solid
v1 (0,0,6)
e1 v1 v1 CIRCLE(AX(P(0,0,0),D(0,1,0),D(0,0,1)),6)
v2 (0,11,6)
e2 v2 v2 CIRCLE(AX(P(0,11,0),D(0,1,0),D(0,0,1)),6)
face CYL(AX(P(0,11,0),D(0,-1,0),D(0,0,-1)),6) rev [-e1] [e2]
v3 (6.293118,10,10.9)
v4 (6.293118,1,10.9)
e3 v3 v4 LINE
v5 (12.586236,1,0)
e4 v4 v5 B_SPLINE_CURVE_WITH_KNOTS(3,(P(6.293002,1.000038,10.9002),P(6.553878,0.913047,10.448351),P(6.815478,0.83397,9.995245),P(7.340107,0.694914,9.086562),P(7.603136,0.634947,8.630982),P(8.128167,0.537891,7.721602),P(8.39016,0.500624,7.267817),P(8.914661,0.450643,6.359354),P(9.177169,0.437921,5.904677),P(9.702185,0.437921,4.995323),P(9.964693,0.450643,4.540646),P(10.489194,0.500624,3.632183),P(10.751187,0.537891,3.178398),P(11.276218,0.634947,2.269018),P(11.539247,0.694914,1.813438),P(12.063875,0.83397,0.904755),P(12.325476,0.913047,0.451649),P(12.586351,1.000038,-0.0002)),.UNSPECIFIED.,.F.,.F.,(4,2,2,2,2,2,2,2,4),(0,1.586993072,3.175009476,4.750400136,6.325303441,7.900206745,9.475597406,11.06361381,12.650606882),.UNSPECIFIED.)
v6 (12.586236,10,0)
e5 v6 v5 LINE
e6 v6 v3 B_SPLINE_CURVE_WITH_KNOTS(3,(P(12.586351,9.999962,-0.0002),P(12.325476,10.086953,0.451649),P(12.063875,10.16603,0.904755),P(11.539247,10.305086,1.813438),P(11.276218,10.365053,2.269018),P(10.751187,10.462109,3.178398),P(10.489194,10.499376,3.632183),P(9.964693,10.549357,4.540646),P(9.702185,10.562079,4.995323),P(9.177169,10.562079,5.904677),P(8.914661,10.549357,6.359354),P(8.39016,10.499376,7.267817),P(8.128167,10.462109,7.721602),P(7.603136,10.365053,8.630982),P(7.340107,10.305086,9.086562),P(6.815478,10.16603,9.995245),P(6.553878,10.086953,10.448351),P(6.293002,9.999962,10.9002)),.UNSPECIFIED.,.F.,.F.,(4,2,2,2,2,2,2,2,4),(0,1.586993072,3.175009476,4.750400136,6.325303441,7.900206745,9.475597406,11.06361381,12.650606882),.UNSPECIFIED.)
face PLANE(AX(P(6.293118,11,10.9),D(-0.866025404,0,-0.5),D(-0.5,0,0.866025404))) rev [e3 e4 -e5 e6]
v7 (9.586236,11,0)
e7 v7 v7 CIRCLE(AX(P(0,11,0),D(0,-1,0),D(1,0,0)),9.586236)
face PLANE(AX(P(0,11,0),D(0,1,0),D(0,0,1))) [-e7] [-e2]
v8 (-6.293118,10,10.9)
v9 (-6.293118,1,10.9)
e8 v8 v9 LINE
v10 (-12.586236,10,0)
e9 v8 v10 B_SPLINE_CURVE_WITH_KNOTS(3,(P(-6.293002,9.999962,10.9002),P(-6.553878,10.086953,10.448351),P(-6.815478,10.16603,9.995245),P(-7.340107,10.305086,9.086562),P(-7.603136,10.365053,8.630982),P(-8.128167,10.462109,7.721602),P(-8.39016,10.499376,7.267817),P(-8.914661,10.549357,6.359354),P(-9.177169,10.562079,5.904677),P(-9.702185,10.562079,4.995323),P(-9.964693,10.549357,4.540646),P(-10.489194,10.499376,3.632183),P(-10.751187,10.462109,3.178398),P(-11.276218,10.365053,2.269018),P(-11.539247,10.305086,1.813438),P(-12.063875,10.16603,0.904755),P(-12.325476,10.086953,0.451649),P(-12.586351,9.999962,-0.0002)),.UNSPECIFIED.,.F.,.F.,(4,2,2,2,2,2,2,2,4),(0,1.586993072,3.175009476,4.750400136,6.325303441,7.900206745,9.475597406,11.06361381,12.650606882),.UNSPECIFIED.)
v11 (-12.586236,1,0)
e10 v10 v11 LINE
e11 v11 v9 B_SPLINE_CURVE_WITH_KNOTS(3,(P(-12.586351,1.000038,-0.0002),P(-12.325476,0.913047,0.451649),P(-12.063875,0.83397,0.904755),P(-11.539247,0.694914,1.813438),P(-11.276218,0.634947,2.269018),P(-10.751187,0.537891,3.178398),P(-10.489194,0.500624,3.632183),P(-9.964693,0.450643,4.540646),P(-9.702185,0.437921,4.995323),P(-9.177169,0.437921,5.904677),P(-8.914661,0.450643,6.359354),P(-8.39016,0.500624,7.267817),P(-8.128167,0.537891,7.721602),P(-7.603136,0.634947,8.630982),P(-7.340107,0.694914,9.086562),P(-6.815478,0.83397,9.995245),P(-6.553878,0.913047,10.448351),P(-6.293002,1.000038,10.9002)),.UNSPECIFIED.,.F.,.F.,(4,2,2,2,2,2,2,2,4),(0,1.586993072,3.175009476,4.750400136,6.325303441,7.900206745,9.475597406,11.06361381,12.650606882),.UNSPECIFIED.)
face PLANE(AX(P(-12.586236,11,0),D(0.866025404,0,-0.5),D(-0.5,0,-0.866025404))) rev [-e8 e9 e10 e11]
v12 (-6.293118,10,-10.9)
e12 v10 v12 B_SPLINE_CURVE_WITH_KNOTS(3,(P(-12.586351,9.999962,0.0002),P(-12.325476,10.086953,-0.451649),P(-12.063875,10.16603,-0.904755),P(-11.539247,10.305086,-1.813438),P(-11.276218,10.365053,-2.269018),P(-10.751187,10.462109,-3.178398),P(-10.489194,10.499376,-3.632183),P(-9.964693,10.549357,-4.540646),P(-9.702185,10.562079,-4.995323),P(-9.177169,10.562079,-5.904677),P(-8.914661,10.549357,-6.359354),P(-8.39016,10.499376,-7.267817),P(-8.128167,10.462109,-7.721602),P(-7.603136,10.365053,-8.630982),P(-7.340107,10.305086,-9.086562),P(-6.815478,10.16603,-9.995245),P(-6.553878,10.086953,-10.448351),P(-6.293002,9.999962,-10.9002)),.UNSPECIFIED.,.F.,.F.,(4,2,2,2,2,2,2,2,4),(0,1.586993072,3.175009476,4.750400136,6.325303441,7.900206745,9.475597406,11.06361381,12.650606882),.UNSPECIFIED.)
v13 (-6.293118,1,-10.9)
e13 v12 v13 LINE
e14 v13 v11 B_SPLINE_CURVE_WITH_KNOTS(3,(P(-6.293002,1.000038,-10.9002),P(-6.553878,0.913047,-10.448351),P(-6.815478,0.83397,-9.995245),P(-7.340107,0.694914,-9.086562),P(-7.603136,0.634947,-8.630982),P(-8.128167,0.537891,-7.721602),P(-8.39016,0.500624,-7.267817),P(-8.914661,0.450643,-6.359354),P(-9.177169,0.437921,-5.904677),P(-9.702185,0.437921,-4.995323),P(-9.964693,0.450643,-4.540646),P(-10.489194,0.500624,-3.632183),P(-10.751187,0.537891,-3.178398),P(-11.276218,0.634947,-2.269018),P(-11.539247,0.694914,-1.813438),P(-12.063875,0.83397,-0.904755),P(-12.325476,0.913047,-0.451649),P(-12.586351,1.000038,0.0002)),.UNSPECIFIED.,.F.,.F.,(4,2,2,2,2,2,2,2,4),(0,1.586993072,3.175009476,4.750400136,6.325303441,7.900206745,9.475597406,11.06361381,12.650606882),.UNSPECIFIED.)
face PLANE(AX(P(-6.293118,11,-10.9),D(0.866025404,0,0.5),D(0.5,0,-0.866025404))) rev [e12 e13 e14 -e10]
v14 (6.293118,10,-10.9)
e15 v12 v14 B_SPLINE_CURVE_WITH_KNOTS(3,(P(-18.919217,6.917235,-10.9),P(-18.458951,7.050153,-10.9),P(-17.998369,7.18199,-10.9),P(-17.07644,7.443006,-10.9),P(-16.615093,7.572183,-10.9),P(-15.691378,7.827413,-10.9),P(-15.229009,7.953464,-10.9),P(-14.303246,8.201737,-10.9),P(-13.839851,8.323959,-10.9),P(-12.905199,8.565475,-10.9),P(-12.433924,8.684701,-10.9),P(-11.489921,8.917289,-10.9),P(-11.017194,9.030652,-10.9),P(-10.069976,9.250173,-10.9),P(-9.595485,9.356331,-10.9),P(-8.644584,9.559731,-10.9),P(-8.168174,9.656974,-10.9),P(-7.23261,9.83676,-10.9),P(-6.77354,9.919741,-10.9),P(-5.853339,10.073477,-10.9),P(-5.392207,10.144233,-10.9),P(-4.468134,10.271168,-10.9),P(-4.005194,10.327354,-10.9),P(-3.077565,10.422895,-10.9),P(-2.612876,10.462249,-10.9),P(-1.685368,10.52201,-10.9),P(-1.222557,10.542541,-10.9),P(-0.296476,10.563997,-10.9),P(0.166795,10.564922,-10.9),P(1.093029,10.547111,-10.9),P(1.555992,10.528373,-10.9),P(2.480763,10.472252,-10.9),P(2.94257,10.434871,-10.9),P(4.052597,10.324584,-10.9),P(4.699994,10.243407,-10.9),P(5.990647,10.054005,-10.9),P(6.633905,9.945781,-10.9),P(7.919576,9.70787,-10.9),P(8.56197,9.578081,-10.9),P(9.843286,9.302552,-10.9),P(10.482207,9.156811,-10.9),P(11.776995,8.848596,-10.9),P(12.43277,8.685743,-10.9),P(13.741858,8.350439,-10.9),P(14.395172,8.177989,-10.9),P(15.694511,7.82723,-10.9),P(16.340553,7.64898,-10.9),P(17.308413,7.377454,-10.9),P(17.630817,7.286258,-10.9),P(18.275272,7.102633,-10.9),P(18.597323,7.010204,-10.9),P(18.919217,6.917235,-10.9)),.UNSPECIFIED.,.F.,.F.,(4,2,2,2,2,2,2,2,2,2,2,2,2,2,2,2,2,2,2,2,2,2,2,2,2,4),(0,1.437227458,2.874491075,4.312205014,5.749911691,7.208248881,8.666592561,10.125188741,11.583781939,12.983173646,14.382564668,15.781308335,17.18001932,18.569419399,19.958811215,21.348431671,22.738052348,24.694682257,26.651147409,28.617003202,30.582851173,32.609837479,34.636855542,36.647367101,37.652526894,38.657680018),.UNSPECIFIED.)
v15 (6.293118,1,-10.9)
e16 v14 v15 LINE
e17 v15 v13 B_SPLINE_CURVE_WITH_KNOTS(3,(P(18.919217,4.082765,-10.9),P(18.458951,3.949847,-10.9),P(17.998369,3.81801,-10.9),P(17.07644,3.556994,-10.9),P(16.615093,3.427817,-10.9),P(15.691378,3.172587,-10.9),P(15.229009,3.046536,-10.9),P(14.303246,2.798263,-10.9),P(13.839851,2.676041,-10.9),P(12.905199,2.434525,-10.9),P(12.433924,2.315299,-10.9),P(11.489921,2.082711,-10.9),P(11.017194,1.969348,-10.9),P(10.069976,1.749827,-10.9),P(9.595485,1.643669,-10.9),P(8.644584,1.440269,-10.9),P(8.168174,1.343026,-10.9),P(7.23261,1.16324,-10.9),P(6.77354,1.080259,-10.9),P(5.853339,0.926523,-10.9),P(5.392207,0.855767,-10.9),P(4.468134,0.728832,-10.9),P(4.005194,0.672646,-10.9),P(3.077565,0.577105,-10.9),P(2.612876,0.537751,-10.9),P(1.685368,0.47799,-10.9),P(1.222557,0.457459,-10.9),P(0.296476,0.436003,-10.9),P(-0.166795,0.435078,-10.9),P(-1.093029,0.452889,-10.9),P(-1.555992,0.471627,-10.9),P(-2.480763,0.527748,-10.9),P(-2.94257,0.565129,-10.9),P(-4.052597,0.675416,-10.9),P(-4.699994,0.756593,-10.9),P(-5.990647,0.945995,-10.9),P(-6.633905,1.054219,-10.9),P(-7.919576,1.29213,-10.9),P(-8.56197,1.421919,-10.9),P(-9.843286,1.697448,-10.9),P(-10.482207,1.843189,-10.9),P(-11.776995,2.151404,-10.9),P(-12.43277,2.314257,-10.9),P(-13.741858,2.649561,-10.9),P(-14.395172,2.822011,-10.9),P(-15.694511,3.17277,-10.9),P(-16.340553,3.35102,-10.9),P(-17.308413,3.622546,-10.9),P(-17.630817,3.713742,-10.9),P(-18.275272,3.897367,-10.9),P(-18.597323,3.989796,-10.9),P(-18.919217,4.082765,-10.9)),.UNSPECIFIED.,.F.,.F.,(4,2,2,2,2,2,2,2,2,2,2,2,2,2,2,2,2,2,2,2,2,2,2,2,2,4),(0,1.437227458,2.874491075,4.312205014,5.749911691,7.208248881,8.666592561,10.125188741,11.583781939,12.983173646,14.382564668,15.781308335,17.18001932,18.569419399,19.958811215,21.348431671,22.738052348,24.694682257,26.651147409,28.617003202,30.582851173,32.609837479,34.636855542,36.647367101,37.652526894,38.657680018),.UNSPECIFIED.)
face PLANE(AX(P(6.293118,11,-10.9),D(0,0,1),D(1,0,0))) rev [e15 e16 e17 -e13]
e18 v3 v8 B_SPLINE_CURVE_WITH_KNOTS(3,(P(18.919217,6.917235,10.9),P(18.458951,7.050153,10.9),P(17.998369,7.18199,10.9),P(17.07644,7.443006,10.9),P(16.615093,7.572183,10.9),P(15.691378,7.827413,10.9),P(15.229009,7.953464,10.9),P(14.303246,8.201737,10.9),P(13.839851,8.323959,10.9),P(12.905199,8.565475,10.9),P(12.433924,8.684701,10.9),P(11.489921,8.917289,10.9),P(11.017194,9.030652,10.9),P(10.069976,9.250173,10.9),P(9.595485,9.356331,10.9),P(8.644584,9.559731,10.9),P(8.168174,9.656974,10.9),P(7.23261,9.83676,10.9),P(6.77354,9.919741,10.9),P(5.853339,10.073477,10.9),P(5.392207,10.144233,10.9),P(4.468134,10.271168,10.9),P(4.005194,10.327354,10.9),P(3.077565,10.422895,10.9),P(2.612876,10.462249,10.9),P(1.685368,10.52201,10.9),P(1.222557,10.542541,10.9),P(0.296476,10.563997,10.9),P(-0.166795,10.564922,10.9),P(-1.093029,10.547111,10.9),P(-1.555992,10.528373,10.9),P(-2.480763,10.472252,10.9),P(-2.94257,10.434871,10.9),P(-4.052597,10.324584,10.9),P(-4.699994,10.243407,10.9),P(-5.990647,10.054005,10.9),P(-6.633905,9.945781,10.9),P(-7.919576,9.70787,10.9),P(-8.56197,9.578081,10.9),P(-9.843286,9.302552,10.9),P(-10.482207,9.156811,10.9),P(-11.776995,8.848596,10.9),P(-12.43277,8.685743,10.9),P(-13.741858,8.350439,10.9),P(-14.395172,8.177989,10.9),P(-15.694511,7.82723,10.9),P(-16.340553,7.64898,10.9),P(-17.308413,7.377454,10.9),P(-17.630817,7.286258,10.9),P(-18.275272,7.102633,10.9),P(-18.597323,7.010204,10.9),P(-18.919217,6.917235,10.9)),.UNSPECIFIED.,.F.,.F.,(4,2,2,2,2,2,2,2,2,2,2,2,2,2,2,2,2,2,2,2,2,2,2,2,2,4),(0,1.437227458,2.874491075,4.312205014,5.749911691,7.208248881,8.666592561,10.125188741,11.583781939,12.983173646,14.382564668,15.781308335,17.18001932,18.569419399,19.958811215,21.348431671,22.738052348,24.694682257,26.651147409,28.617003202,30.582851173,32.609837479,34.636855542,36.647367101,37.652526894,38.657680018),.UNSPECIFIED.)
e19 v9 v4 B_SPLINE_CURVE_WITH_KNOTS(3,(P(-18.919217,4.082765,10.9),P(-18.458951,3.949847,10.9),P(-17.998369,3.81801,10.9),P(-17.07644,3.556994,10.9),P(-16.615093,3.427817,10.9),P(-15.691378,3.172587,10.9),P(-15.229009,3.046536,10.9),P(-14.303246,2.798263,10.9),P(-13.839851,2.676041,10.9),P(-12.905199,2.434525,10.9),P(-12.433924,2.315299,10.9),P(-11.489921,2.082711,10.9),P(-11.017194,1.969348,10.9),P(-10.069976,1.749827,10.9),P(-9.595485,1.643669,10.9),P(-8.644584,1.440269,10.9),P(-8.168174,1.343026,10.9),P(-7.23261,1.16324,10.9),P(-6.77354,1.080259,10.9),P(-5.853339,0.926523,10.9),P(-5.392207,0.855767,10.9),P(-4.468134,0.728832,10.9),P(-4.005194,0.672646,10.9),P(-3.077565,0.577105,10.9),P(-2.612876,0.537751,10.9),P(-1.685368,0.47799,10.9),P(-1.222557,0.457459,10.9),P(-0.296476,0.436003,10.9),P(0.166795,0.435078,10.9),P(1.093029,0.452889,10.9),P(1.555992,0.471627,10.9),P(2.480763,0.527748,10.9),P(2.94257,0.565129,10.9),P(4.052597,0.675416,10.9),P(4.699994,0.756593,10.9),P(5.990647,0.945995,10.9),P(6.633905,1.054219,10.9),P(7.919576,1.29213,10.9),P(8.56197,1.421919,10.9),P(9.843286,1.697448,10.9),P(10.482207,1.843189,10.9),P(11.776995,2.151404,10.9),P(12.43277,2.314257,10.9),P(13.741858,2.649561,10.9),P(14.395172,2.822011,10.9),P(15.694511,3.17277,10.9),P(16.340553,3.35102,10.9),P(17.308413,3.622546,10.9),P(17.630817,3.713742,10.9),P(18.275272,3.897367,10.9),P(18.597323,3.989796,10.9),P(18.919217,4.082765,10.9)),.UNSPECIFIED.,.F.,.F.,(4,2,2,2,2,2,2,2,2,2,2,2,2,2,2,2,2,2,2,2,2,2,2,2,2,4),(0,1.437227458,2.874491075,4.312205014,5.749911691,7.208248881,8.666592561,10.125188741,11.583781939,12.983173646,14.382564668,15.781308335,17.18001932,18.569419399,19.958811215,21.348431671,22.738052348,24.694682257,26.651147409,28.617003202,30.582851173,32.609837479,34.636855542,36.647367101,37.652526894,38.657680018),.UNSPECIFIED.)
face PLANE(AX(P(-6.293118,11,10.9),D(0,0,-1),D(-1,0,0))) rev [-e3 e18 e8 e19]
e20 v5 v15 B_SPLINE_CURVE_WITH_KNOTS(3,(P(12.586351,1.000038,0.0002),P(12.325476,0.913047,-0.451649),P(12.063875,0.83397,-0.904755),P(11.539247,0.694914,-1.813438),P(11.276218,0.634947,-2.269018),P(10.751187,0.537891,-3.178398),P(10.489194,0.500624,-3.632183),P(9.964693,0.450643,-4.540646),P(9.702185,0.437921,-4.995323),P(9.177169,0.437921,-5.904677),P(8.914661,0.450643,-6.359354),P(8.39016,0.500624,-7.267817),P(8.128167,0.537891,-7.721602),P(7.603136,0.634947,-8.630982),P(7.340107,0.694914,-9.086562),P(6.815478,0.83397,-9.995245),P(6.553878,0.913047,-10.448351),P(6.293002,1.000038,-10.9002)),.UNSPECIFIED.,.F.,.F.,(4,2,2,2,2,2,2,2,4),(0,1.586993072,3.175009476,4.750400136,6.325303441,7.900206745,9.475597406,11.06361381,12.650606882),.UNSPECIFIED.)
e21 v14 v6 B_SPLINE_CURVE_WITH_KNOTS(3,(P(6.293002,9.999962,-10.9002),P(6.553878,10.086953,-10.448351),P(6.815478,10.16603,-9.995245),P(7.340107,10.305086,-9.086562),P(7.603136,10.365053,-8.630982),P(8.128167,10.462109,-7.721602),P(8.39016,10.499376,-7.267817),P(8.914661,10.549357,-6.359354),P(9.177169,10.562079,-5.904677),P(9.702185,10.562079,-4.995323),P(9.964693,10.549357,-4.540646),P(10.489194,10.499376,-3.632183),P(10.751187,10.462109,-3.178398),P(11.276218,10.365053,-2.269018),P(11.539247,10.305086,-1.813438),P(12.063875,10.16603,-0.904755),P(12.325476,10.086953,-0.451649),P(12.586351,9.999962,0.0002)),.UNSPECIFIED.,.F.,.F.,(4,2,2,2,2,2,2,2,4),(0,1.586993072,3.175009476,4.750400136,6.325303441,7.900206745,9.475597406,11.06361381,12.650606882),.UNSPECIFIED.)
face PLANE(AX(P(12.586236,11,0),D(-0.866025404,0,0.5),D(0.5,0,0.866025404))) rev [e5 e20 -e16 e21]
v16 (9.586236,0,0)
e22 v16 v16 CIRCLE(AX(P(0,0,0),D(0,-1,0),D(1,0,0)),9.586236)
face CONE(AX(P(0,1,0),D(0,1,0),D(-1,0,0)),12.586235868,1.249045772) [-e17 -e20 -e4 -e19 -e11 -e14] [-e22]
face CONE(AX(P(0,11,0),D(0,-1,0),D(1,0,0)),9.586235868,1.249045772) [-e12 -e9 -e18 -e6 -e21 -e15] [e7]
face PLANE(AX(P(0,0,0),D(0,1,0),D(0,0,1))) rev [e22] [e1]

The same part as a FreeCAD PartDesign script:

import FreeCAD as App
import Part
import Sketcher
from FreeCAD import Vector
Q = App.Units.Quantity


def add_polygon(sketch, points):
    """Adds a closed chain of lines whose ends are joined by coincident constraints."""
    first, n = sketch.GeometryCount, len(points)
    for a, b in zip(points, points[1:] + points[:1]):
        sketch.addGeometry(Part.LineSegment(App.Vector(*a, 0), App.Vector(*b, 0)), False)
    for i in range(n):
        sketch.addConstraint(Sketcher.Constraint("Coincident", first + i, 2, first + (i + 1) % n, 1))

doc = App.newDocument("Part")
body = doc.addObject("PartDesign::Body", "Body")

sketch1 = body.newObject("Sketcher::SketchObject", "Sketch")
sketch1.AttachmentSupport = (doc.getObject("XZ_Plane"), [""])
sketch1.MapMode = "FlatFace"
add_polygon(sketch1, [(12.586236, 0), (6.293118, -10.9), (-6.293118, -10.9), (-12.586236, 0), (-6.293118, 10.9), (6.293118, 10.9)])
sketch1.addGeometry(Part.Circle(Vector(0, 0, 0), Vector(0, 0, 1), 6), False)
sketch1.addConstraint(Sketcher.Constraint("Horizontal", 1))
sketch1.addConstraint(Sketcher.Constraint("Horizontal", 4))
sketch1.addConstraint(Sketcher.Constraint("Coincident", 6, 3, -1, 1))
sketch1.addConstraint(Sketcher.Constraint("Symmetric", 0, 2, 3, 2, -1, 1))
sketch1.addConstraint(Sketcher.Constraint("Symmetric", 2, 2, 5, 2, -1, 1))
sketch1.addConstraint(Sketcher.Constraint("PointOnObject", 2, 2, -1))
sketch1.addConstraint(Sketcher.Constraint("Parallel", 2, 5))
sketch1.addConstraint(Sketcher.Constraint("Vertical", 1, 2, 3, 2))
sketch1.addConstraint(Sketcher.Constraint("Diameter", 6, Q("12 mm")))
sketch1.addConstraint(Sketcher.Constraint("Angle", 0, Q("-120 deg")))
sketch1.addConstraint(Sketcher.Constraint("DistanceY", 0, 2, -1, 1, Q("10.9 mm")))
sketch1.addConstraint(Sketcher.Constraint("DistanceX", 1, 2, 1, 1, Q("12.586236 mm")))
pad1 = body.newObject("PartDesign::Pad", "Pad")
pad1.Profile = sketch1
pad1.Length = 11
pad1.Reversed = True

sketch2 = body.newObject("Sketcher::SketchObject", "Sketch001")
sketch2.AttachmentSupport = (doc.getObject("XY_Plane"), [""])
sketch2.MapMode = "FlatFace"
add_polygon(sketch2, [(9.586236, 11), (12.586236, 10), (12.586236, 11)])
add_polygon(sketch2, [(12.586236, 1), (9.586236, 0), (12.586236, 0)])
sketch2.addConstraint(Sketcher.Constraint("Vertical", 1))
sketch2.addConstraint(Sketcher.Constraint("Horizontal", 2))
sketch2.addConstraint(Sketcher.Constraint("Horizontal", 4))
sketch2.addConstraint(Sketcher.Constraint("Vertical", 5))
sketch2.addConstraint(Sketcher.Constraint("PointOnObject", 3, 2, -1))
sketch2.addConstraint(Sketcher.Constraint("Vertical", 2, 2, 3, 2))
sketch2.addConstraint(Sketcher.Constraint("Vertical", 1, 2, 4, 2))
sketch2.addConstraint(Sketcher.Constraint("Equal", 1, 5))
sketch2.addConstraint(Sketcher.Constraint("DistanceX", 2, 2, 2, 1, Q("3 mm")))
sketch2.addConstraint(Sketcher.Constraint("DistanceY", 1, 1, 1, 2, Q("1 mm")))
sketch2.addConstraint(Sketcher.Constraint("DistanceY", -1, 1, 0, 2, Q("10 mm")))
sketch2.addConstraint(Sketcher.Constraint("DistanceX", -1, 1, 0, 2, Q("12.586236 mm")))
groove = body.newObject("PartDesign::Groove", "Groove")
groove.Profile = sketch2
groove.ReferenceAxis = (sketch2, ["V_Axis"])
groove.Angle = 360

doc.recompute()
